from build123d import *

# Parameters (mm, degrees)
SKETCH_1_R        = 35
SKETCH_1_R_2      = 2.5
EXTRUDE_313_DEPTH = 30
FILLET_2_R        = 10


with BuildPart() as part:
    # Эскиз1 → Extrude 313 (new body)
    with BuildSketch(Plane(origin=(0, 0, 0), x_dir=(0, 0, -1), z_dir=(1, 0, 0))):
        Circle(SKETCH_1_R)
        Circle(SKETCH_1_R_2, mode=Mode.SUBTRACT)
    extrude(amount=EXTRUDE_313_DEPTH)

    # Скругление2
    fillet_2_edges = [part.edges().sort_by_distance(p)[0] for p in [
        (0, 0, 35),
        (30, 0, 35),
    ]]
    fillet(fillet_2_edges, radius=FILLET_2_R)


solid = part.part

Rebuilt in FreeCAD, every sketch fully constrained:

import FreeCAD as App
import Part
import Sketcher
Q = App.Units.Quantity


def edges_at(feature, points):
    """Names of the edges that pass closest to the given points."""
    edges = feature.Shape.Edges
    near = lambda p: min(range(len(edges)), key=lambda i: edges[i].distToShape(Part.Vertex(*p))[0])
    return sorted({f"Edge{near(p) + 1}" for p in points})

doc = App.newDocument("Part")
body = doc.addObject("PartDesign::Body", "Body")

# Sketch on YZ plane
sketch1 = body.newObject("Sketcher::SketchObject", "Sketch")
sketch1.AttachmentSupport = (doc.getObject("YZ_Plane"), [""])
sketch1.MapMode = "FlatFace"
sketch1.addGeometry(Part.Circle(App.Vector(0, 0, 0), App.Vector(0, 0, 1), 35), False)
sketch1.addGeometry(Part.Circle(App.Vector(0, 0, 0), App.Vector(0, 0, 1), 2.5), False)
sketch1.addConstraint(Sketcher.Constraint("Coincident", 0, 3, -1, 1))
sketch1.addConstraint(Sketcher.Constraint("Coincident", 1, 3, -1, 1))
sketch1.addConstraint(Sketcher.Constraint("Diameter", 0, Q("70 mm")))
sketch1.addConstraint(Sketcher.Constraint("Diameter", 1, Q("5 mm")))
pad1 = body.newObject("PartDesign::Pad", "Pad")
pad1.Profile = sketch1
pad1.Length = 30
doc.recompute()

fillet = body.newObject("PartDesign::Fillet", "Fillet")
fillet.Base = (pad1, edges_at(pad1, [(0, 0, 35), (30, 0, 35)]))
fillet.Radius = 10

doc.recompute()
